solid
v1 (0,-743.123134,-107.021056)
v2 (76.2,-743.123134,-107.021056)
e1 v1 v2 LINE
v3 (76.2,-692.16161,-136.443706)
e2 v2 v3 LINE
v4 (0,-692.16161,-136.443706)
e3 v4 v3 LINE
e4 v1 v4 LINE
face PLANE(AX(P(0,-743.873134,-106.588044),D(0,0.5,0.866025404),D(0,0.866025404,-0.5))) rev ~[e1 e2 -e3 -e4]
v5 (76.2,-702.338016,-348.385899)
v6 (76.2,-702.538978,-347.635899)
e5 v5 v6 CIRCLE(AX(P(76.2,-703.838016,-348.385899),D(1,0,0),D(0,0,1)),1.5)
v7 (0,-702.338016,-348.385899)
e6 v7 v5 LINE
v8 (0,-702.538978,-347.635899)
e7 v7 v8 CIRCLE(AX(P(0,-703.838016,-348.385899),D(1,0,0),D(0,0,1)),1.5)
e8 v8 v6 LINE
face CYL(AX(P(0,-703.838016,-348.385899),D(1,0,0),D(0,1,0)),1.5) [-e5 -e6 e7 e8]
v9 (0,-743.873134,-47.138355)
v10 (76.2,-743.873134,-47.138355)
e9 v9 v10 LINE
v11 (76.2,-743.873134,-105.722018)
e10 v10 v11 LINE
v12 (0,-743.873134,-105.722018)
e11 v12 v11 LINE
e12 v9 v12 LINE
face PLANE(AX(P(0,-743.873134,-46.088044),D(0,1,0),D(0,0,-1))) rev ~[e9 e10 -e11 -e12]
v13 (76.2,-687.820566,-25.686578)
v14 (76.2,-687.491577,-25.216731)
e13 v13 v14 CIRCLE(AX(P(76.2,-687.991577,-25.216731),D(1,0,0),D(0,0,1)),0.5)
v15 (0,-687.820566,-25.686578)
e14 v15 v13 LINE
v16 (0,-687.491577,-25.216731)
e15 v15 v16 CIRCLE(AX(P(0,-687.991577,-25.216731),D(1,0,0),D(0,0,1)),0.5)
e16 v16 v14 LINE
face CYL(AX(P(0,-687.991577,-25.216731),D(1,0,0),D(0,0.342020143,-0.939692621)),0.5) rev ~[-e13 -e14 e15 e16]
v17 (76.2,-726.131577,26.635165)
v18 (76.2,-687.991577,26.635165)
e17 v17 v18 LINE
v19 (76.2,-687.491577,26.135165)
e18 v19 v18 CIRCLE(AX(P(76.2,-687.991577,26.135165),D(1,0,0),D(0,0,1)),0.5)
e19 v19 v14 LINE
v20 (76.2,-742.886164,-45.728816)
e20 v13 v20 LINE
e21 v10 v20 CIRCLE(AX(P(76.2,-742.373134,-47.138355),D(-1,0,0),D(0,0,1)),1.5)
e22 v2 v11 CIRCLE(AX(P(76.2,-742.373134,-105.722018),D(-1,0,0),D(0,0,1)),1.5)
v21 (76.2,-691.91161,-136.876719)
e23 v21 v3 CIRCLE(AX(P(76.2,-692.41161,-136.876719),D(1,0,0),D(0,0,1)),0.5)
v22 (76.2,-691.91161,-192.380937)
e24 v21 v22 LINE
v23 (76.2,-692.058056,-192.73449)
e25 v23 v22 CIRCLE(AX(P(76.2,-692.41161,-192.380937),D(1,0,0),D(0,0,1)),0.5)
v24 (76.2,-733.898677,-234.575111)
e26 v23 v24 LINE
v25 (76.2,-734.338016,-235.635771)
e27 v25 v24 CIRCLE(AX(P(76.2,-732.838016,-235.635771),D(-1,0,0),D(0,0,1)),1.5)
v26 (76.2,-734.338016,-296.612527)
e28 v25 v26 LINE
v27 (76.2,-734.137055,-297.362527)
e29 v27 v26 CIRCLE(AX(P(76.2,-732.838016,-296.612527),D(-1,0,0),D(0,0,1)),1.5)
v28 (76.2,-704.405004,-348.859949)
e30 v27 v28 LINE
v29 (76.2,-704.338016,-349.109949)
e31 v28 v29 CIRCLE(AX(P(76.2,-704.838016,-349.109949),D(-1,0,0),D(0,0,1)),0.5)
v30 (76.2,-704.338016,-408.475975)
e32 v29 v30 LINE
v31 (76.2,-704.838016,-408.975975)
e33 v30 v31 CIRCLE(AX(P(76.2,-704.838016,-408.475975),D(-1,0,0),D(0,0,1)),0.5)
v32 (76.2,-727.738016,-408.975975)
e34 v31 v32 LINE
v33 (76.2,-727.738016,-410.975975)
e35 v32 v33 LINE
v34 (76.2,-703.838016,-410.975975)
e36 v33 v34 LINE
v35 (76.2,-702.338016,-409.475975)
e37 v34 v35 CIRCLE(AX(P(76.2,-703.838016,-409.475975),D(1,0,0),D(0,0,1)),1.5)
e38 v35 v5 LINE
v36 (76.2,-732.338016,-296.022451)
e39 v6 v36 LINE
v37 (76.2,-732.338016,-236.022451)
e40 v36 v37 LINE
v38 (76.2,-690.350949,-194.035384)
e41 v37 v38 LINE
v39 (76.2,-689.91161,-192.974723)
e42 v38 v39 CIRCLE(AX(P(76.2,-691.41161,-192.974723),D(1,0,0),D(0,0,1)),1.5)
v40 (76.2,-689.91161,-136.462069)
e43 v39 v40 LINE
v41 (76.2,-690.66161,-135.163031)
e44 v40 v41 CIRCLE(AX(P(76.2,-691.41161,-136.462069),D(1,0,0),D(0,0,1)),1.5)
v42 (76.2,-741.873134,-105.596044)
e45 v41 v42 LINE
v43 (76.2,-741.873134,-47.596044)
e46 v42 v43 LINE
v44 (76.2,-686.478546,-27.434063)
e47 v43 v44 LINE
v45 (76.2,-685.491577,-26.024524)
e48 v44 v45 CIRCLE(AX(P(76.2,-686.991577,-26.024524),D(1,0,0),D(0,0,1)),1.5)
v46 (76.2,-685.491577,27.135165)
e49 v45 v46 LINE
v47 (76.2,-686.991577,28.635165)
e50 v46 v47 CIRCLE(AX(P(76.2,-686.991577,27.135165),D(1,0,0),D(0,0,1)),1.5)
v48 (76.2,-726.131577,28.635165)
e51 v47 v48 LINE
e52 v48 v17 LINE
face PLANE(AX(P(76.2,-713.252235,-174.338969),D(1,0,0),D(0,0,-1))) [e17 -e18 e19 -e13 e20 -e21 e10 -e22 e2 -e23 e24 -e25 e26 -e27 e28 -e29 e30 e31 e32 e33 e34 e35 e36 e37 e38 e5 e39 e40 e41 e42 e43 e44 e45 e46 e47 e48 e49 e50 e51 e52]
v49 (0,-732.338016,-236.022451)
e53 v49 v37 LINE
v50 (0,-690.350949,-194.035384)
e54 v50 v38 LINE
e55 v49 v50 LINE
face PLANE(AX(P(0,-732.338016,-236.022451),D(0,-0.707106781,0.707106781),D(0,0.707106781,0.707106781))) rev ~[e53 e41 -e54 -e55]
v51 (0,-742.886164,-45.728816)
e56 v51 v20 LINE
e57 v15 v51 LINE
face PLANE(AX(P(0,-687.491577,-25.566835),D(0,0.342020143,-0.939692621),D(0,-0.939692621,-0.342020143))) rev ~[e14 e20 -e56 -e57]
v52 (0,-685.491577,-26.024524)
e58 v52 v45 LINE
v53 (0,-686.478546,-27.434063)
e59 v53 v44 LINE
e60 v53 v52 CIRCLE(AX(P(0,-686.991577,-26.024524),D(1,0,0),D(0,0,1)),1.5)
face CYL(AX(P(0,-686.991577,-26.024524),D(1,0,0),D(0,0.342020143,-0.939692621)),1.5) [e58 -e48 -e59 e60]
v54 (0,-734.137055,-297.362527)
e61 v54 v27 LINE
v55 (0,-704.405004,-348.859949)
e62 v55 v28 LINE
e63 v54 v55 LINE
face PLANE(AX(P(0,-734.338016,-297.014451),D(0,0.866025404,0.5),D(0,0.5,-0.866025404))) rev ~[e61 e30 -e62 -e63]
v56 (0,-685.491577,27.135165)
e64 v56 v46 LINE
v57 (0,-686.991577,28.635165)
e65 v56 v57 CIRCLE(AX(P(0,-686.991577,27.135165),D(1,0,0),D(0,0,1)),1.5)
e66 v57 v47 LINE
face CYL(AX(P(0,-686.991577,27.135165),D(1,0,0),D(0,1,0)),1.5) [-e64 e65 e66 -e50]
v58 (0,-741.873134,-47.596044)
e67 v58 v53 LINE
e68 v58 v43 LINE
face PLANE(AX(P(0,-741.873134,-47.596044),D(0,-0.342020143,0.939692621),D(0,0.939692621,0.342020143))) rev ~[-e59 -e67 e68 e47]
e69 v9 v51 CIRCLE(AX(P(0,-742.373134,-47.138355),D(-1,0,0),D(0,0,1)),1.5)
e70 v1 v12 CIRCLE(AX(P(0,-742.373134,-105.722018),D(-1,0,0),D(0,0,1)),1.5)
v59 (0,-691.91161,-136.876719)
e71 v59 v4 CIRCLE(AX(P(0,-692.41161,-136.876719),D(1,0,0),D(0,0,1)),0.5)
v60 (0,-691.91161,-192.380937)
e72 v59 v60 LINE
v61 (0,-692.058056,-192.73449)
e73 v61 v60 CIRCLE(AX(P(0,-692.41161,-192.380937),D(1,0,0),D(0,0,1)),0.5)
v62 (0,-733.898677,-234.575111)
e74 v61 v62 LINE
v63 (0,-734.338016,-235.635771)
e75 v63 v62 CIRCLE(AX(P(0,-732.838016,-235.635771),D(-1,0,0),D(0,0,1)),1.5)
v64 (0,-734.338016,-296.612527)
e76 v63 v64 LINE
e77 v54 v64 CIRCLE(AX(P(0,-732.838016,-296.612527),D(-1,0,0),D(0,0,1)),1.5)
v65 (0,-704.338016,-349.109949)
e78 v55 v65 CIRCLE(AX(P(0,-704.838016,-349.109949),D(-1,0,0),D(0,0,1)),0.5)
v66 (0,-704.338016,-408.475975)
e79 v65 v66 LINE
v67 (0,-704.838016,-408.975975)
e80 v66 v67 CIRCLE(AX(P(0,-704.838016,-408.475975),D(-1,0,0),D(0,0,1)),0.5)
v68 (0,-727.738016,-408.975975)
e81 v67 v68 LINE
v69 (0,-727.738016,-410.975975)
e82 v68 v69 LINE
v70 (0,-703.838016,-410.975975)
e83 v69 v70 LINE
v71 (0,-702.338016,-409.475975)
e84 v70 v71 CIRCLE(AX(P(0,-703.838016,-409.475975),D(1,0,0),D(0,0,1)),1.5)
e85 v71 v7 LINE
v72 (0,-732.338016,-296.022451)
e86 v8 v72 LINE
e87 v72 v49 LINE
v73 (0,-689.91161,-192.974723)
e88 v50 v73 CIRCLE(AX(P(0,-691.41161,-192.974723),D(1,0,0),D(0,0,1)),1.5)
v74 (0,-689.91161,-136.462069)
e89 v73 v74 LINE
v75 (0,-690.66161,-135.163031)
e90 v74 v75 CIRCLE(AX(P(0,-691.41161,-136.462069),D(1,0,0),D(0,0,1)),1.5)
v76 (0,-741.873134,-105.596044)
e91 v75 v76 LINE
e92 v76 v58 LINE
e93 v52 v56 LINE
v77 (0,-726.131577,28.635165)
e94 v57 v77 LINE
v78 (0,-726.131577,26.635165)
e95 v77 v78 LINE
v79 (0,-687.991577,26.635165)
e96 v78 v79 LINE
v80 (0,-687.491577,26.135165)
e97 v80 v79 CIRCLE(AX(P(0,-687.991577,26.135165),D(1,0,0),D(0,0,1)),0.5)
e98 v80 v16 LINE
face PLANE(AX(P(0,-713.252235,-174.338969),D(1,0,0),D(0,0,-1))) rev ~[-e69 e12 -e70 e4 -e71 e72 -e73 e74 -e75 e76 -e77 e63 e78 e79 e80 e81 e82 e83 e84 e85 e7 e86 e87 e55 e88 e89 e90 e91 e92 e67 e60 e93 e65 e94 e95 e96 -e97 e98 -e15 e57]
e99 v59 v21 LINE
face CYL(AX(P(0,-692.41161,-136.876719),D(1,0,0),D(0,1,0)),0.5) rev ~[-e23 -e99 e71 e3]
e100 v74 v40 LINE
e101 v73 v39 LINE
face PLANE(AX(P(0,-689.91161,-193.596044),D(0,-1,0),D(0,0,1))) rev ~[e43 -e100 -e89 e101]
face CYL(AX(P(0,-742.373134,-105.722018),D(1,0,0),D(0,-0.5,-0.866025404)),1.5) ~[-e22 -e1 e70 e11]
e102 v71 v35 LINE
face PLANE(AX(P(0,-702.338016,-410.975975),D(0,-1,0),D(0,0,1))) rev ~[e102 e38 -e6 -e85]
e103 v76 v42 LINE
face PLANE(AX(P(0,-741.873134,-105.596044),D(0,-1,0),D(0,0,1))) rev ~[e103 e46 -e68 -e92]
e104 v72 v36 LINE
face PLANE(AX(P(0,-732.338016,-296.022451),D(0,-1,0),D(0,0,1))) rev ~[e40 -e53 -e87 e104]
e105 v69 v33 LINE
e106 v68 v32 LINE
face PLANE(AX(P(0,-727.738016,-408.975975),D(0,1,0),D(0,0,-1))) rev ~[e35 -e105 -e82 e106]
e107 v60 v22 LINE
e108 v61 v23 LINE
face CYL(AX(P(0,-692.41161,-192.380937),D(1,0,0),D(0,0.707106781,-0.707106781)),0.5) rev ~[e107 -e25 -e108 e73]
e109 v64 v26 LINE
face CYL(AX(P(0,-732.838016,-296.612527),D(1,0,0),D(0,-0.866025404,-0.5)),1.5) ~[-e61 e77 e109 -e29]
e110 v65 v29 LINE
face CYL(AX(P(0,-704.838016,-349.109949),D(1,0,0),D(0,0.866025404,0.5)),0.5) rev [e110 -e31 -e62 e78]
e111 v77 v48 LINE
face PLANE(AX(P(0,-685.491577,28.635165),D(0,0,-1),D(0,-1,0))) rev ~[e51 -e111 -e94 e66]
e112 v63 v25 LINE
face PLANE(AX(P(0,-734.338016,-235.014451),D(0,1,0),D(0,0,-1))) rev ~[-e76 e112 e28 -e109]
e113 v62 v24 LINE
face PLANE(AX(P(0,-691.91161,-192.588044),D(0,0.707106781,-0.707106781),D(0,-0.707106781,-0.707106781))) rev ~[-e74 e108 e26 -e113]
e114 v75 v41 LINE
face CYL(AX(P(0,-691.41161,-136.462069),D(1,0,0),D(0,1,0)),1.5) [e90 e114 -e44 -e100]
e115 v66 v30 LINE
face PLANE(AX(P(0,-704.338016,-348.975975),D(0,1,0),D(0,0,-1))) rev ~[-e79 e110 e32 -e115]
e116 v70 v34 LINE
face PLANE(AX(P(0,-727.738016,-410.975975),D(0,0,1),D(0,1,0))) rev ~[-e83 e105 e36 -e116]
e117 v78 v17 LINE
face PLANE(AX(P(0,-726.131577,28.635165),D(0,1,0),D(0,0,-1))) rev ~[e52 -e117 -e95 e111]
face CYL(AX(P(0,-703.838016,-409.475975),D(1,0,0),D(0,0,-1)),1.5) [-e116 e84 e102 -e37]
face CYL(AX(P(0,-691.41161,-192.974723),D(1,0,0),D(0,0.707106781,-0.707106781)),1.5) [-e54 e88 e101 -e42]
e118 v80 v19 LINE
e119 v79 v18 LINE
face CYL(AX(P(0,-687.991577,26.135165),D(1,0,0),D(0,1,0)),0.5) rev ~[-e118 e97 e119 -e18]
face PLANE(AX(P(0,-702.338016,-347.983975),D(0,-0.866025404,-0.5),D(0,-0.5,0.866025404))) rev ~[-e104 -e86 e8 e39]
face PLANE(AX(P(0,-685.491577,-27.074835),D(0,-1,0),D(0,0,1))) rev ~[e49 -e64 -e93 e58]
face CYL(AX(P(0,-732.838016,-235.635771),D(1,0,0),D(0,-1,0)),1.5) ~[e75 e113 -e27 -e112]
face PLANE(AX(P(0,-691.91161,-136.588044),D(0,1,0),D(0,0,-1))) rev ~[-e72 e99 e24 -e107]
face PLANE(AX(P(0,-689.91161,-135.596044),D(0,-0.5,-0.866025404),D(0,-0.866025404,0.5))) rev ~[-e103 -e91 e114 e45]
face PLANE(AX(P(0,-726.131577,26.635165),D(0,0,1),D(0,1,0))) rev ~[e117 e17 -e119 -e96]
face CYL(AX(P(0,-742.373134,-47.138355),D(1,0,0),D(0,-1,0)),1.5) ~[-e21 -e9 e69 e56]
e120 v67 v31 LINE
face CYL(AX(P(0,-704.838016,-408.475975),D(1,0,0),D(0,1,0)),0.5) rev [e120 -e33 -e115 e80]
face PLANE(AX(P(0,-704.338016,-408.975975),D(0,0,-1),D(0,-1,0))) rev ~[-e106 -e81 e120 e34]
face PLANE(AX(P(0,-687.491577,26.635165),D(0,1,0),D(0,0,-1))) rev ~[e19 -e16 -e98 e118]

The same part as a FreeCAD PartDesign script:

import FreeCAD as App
import Part
import Sketcher

V = App.Vector
Q = App.Units.Quantity


def edges_at(feature, points):
    """Names of the edges that pass closest to the given points."""
    edges = feature.Shape.Edges
    near = lambda p: min(range(len(edges)), key=lambda i: edges[i].distToShape(Part.Vertex(*p))[0])
    return sorted({f"Edge{near(p) + 1}" for p in points})

doc = App.newDocument("Part")
body = doc.addObject("PartDesign::Body", "Body")

sketch1 = body.newObject("Sketcher::SketchObject", "Sketch")
sketch1.AttachmentSupport = (doc.getObject("YZ_Plane"), [""])
sketch1.MapMode = "FlatFace"
sketch1.addGeometry(Part.LineSegment(V(-727.7, -411, 0), V(-702.3, -411, 0)), False)
sketch1.addGeometry(Part.LineSegment(V(-702.3, -411, 0), V(-702.3, -348, 0)), False)
sketch1.addGeometry(Part.LineSegment(V(-702.3, -348, 0), V(-732.3, -296, 0)), False)
sketch1.addGeometry(Part.LineSegment(V(-732.3, -296, 0), V(-732.3, -236, 0)), False)
sketch1.addGeometry(Part.LineSegment(V(-732.3, -236, 0), V(-689.9, -193.6, 0)), False)
sketch1.addGeometry(Part.LineSegment(V(-689.9, -193.6, 0), V(-689.9, -135.6, 0)), False)
sketch1.addGeometry(Part.LineSegment(V(-689.9, -135.6, 0), V(-741.9, -105.6, 0)), False)
sketch1.addGeometry(Part.LineSegment(V(-741.9, -105.6, 0), V(-741.9, -47.6, 0)), False)
sketch1.addGeometry(Part.LineSegment(V(-741.9, -47.6, 0), V(-685.5, -27.1, 0)), False)
sketch1.addGeometry(Part.LineSegment(V(-685.5, -27.1, 0), V(-685.5, 28.6, 0)), False)
sketch1.addGeometry(Part.LineSegment(V(-685.5, 28.6, 0), V(-726.1, 28.6, 0)), False)
sketch1.addGeometry(Part.LineSegment(V(-726.1, 28.6, 0), V(-726.1, 26.6, 0)), False)
sketch1.addGeometry(Part.LineSegment(V(-726.1, 26.6, 0), V(-687.5, 26.6, 0)), False)
sketch1.addGeometry(Part.LineSegment(V(-687.5, 26.6, 0), V(-687.5, -25.6, 0)), False)
sketch1.addGeometry(Part.LineSegment(V(-687.5, -25.6, 0), V(-743.9, -46.1, 0)), False)
sketch1.addGeometry(Part.LineSegment(V(-743.9, -46.1, 0), V(-743.9, -106.6, 0)), False)
sketch1.addGeometry(Part.LineSegment(V(-743.9, -106.6, 0), V(-691.9, -136.6, 0)), False)
sketch1.addGeometry(Part.LineSegment(V(-691.9, -136.6, 0), V(-691.9, -192.6, 0)), False)
sketch1.addGeometry(Part.LineSegment(V(-691.9, -192.6, 0), V(-734.3, -235, 0)), False)
sketch1.addGeometry(Part.LineSegment(V(-734.3, -235, 0), V(-734.3, -297, 0)), False)
sketch1.addGeometry(Part.LineSegment(V(-734.3, -297, 0), V(-704.3, -349, 0)), False)
sketch1.addGeometry(Part.LineSegment(V(-704.3, -349, 0), V(-704.3, -409, 0)), False)
sketch1.addGeometry(Part.LineSegment(V(-704.3, -409, 0), V(-727.7, -409, 0)), False)
sketch1.addGeometry(Part.LineSegment(V(-727.7, -409, 0), V(-727.7, -411, 0)), False)
sketch1.addConstraint(Sketcher.Constraint("Coincident", 0, 2, 1, 1))
sketch1.addConstraint(Sketcher.Constraint("Coincident", 1, 2, 2, 1))
sketch1.addConstraint(Sketcher.Constraint("Coincident", 2, 2, 3, 1))
sketch1.addConstraint(Sketcher.Constraint("Coincident", 3, 2, 4, 1))
sketch1.addConstraint(Sketcher.Constraint("Coincident", 4, 2, 5, 1))
sketch1.addConstraint(Sketcher.Constraint("Coincident", 5, 2, 6, 1))
sketch1.addConstraint(Sketcher.Constraint("Coincident", 6, 2, 7, 1))
sketch1.addConstraint(Sketcher.Constraint("Coincident", 7, 2, 8, 1))
sketch1.addConstraint(Sketcher.Constraint("Coincident", 8, 2, 9, 1))
sketch1.addConstraint(Sketcher.Constraint("Coincident", 9, 2, 10, 1))
sketch1.addConstraint(Sketcher.Constraint("Coincident", 10, 2, 11, 1))
sketch1.addConstraint(Sketcher.Constraint("Coincident", 11, 2, 12, 1))
sketch1.addConstraint(Sketcher.Constraint("Coincident", 12, 2, 13, 1))
sketch1.addConstraint(Sketcher.Constraint("Coincident", 13, 2, 14, 1))
sketch1.addConstraint(Sketcher.Constraint("Coincident", 14, 2, 15, 1))
sketch1.addConstraint(Sketcher.Constraint("Coincident", 15, 2, 16, 1))
sketch1.addConstraint(Sketcher.Constraint("Coincident", 16, 2, 17, 1))
sketch1.addConstraint(Sketcher.Constraint("Coincident", 17, 2, 18, 1))
sketch1.addConstraint(Sketcher.Constraint("Coincident", 18, 2, 19, 1))
sketch1.addConstraint(Sketcher.Constraint("Coincident", 19, 2, 20, 1))
sketch1.addConstraint(Sketcher.Constraint("Coincident", 20, 2, 21, 1))
sketch1.addConstraint(Sketcher.Constraint("Coincident", 21, 2, 22, 1))
sketch1.addConstraint(Sketcher.Constraint("Coincident", 22, 2, 23, 1))
sketch1.addConstraint(Sketcher.Constraint("Coincident", 23, 2, 0, 1))
sketch1.addConstraint(Sketcher.Constraint("Horizontal", 0))
sketch1.addConstraint(Sketcher.Constraint("Vertical", 1))
sketch1.addConstraint(Sketcher.Constraint("Vertical", 3))
sketch1.addConstraint(Sketcher.Constraint("Vertical", 5))
sketch1.addConstraint(Sketcher.Constraint("Vertical", 7))
sketch1.addConstraint(Sketcher.Constraint("Vertical", 9))
sketch1.addConstraint(Sketcher.Constraint("Horizontal", 10))
sketch1.addConstraint(Sketcher.Constraint("Vertical", 11))
sketch1.addConstraint(Sketcher.Constraint("Horizontal", 12))
sketch1.addConstraint(Sketcher.Constraint("Vertical", 13))
sketch1.addConstraint(Sketcher.Constraint("Vertical", 15))
sketch1.addConstraint(Sketcher.Constraint("Vertical", 17))
sketch1.addConstraint(Sketcher.Constraint("Vertical", 19))
sketch1.addConstraint(Sketcher.Constraint("Vertical", 21))
sketch1.addConstraint(Sketcher.Constraint("Horizontal", 22))
sketch1.addConstraint(Sketcher.Constraint("Vertical", 23))
sketch1.addConstraint(Sketcher.Constraint("Parallel", 8, 14))
sketch1.addConstraint(Sketcher.Constraint("Parallel", 6, 16))
sketch1.addConstraint(Sketcher.Constraint("Parallel", 4, 18))
sketch1.addConstraint(Sketcher.Constraint("Parallel", 2, 20))
sketch1.addConstraint(Sketcher.Constraint("Equal", 5, 7))
sketch1.addConstraint(Sketcher.Constraint("Equal", 3, 21))
sketch1.addConstraint(Sketcher.Constraint("Equal", 11, 23))
sketch1.addConstraint(Sketcher.Constraint("Equal", 2, 4))
sketch1.addConstraint(Sketcher.Constraint("Equal", 4, 6))
sketch1.addConstraint(Sketcher.Constraint("Equal", 6, 8))
sketch1.addConstraint(Sketcher.Constraint("Equal", 8, 14))
sketch1.addConstraint(Sketcher.Constraint("Equal", 14, 16))
sketch1.addConstraint(Sketcher.Constraint("Equal", 16, 18))
sketch1.addConstraint(Sketcher.Constraint("Equal", 18, 20))
sketch1.addConstraint(Sketcher.Constraint("DistanceY", 3, 1, 3, 2, Q("60 mm")))
sketch1.addConstraint(Sketcher.Constraint("DistanceY", 5, 1, 5, 2, Q("58 mm")))
sketch1.addConstraint(Sketcher.Constraint("DistanceY", 11, 2, 11, 1, Q("2 mm")))
sketch1.addConstraint(Sketcher.Constraint("DistanceY", 17, 2, 17, 1, Q("56 mm")))
sketch1.addConstraint(Sketcher.Constraint("DistanceY", 19, 2, 19, 1, Q("62 mm")))
sketch1.addConstraint(Sketcher.Constraint("Angle", 2, Q("120 deg")))
sketch1.addConstraint(Sketcher.Constraint("Angle", 4, Q("45 deg")))
sketch1.addConstraint(Sketcher.Constraint("Angle", 6, Q("150 deg")))
sketch1.addConstraint(Sketcher.Constraint("Angle", 8, Q("20 deg")))
sketch1.addConstraint(Sketcher.Constraint("Distance", 2, Q("60 mm")))
sketch1.addConstraint(Sketcher.Constraint("DistanceX", 0, 1, 0, 2, Q("25.4 mm")))
sketch1.addConstraint(Sketcher.Constraint("DistanceX", 22, 2, 22, 1, Q("23.4 mm")))
sketch1.addConstraint(Sketcher.Constraint("DistanceY", 15, 2, 15, 1, Q("60.5 mm")))
sketch1.addConstraint(Sketcher.Constraint("DistanceX", 10, 2, 10, 1, Q("40.64 mm")))
sketch1.addConstraint(Sketcher.Constraint("DistanceY", 9, 1, 9, 2, Q("55.71 mm")))
sketch1.addConstraint(Sketcher.Constraint("DistanceY", 1, 1, 1, 2, Q("62.992 mm")))
sketch1.addConstraint(Sketcher.Constraint("DistanceY", 2, 2, -1, 1, Q("296.022451 mm")))
sketch1.addConstraint(Sketcher.Constraint("DistanceX", 4, 2, -1, 1, Q("689.91161 mm")))
pad1 = body.newObject("PartDesign::Pad", "Pad")
pad1.Profile = sketch1
pad1.Length = 76.2
doc.recompute()

fillet = body.newObject("PartDesign::Fillet", "Fillet")
fillet.Base = (pad1, edges_at(pad1, [
    (38.1, -685.492, 28.635),
    (38.1, -685.492, -27.075),
    (38.1, -689.912, -135.596),
    (38.1, -689.912, -193.596),
    (38.1, -702.338, -347.984),
    (38.1, -702.338, -410.976),
]))
fillet.Radius = 1.5
doc.recompute()

fillet2 = body.newObject("PartDesign::Fillet", "Fillet001")
fillet2.Base = (fillet, edges_at(fillet, [
    (38.1, -734.338, -297.014),
    (38.1, -734.338, -235.014),
    (38.1, -743.873, -106.588),
    (38.1, -743.873, -46.088),
]))
fillet2.Radius = 1.5
doc.recompute()

fillet3 = body.newObject("PartDesign::Fillet", "Fillet002")
fillet3.Base = (fillet2, edges_at(fillet2, [
    (38.1, -704.338, -408.976),
    (38.1, -704.338, -348.976),
    (38.1, -691.912, -192.588),
    (38.1, -691.912, -136.588),
    (38.1, -687.492, -25.567),
    (38.1, -687.492, 26.635),
]))
fillet3.Radius = 0.5

doc.recompute()
